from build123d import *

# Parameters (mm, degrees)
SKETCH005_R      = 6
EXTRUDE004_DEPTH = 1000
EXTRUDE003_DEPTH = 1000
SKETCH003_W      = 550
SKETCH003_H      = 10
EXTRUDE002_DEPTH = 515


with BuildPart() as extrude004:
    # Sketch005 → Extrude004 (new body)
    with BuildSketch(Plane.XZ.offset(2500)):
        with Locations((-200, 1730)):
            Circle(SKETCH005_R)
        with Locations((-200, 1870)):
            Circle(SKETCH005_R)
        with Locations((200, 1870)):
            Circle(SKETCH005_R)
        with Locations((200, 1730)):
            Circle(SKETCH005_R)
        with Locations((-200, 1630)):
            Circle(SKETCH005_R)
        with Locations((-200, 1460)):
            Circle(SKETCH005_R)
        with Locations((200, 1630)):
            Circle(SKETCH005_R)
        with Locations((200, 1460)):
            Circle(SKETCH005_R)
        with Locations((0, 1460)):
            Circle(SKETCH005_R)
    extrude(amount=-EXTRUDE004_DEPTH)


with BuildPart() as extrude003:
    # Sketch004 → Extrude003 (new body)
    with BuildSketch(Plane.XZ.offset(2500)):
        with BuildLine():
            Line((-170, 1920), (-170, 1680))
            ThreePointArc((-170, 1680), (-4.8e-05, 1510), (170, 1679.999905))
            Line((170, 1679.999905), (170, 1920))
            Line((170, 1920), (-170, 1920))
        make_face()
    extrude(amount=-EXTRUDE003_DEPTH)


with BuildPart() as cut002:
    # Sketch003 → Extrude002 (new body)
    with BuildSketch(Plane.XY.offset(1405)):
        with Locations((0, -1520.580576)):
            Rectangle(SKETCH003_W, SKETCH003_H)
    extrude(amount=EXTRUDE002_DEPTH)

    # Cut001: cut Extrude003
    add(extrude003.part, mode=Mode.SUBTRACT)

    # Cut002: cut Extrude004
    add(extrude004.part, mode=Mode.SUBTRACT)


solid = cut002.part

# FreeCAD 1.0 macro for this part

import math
import FreeCAD as App
import Part
import Sketcher

V = App.Vector

doc = App.newDocument("Part")
body = doc.addObject("PartDesign::Body", "Body")
body.AllowCompound = True

# Sketch on XZ plane
sketch1 = body.newObject("Sketcher::SketchObject", "Sketch")
sketch1.AttachmentSupport = (doc.getObject("XZ_Plane"), [""])
sketch1.MapMode = "FlatFace"
sketch1.AttachmentOffset = App.Placement(V(0, 0, 2500), App.Rotation())
sketch1.addGeometry([
    Part.Circle(V(-200, 1730, 0), V(0, 0, 1), 6),  # 0
    Part.Circle(V(-200, 1870, 0), V(0, 0, 1), 6),  # 1
    Part.Circle(V(200, 1870, 0), V(0, 0, 1), 6),  # 2
    Part.Circle(V(200, 1730, 0), V(0, 0, 1), 6),  # 3
    Part.Circle(V(-200, 1630, 0), V(0, 0, 1), 6),  # 4
    Part.Circle(V(-200, 1460, 0), V(0, 0, 1), 6),  # 5
    Part.Circle(V(200, 1630, 0), V(0, 0, 1), 6),  # 6
    Part.Circle(V(200, 1460, 0), V(0, 0, 1), 6),  # 7
    Part.Circle(V(0, 1460, 0), V(0, 0, 1), 6),  # 8
], False)
sketch1.addConstraint([
    Sketcher.Constraint("Equal", 0, 1),
    Sketcher.Constraint("Equal", 1, 2),
    Sketcher.Constraint("Equal", 2, 3),
    Sketcher.Constraint("Equal", 3, 4),
    Sketcher.Constraint("Equal", 4, 5),
    Sketcher.Constraint("Equal", 5, 6),
    Sketcher.Constraint("Equal", 6, 7),
    Sketcher.Constraint("Equal", 7, 8),
    Sketcher.Constraint("Symmetric", 1, 3, 2, 3, -2),
    Sketcher.Constraint("Symmetric", 0, 3, 3, 3, -2),
    Sketcher.Constraint("Symmetric", 4, 3, 6, 3, -2),
    Sketcher.Constraint("Symmetric", 5, 3, 7, 3, -2),
    Sketcher.Constraint("PointOnObject", 8, 3, -2),
    Sketcher.Constraint("Horizontal", 7, 3, 8, 3),
    Sketcher.Constraint("Vertical", 0, 3, 1, 3),
    Sketcher.Constraint("Vertical", 1, 3, 4, 3),
    Sketcher.Constraint("Vertical", 4, 3, 5, 3),
    Sketcher.Constraint("Diameter", 0, 12.0),
    Sketcher.Constraint("DistanceX", 0, 3, -1, 1, 200.0),
    Sketcher.Constraint("DistanceY", -1, 1, 0, 3, 1730.0),
    Sketcher.Constraint("DistanceY", -1, 1, 1, 3, 1870.0),
    Sketcher.Constraint("DistanceY", -1, 1, 4, 3, 1630.0),
    Sketcher.Constraint("DistanceY", -1, 1, 5, 3, 1460.0),
])
pad1 = body.newObject("PartDesign::Pad", "Pad")
pad1.Profile = sketch1
pad1.Length = 1000
pad1.Reversed = True
body2 = doc.addObject("PartDesign::Body", "Body001")

# Sketch on XZ plane
sketch2 = body2.newObject("Sketcher::SketchObject", "Sketch001")
sketch2.AttachmentSupport = (doc.getObject("XZ_Plane001"), [""])
sketch2.MapMode = "FlatFace"
sketch2.AttachmentOffset = App.Placement(V(0, 0, 2500), App.Rotation())
sketch2.addGeometry([
    Part.LineSegment(V(-170, 1920, 0), V(-170, 1680, 0)),
    Part.ArcOfCircle(Part.Circle(V(0, 1680, 0), V(0, 0, 1), 170), math.radians(180), math.radians(359.999968)),
    Part.LineSegment(V(170, 1679.999905, 0), V(170, 1920, 0)),
    Part.LineSegment(V(170, 1920, 0), V(-170, 1920, 0)),
], False)
sketch2.addConstraint([
    Sketcher.Constraint("Coincident", 0, 2, 1, 1),
    Sketcher.Constraint("Coincident", 1, 2, 2, 1),
    Sketcher.Constraint("Coincident", 2, 2, 3, 1),
    Sketcher.Constraint("Coincident", 3, 2, 0, 1),
    Sketcher.Constraint("Vertical", 0),
    Sketcher.Constraint("Vertical", 2),
    Sketcher.Constraint("Horizontal", 3),
    Sketcher.Constraint("PointOnObject", 1, 3, -2),
    Sketcher.Constraint("Radius", 1, 170.0),
    Sketcher.Constraint("DistanceY", 0, 2, 0, 1, 240.0),
    Sketcher.Constraint("DistanceY", -1, 1, 1, 3, 1680.0),
    Sketcher.Constraint("DistanceY", -1, 1, 0, 2, 1680.0),
    Sketcher.Constraint("DistanceY", 2, 1, 2, 2, 240.000095),
])
pad2 = body2.newObject("PartDesign::Pad", "Pad001")
pad2.Profile = sketch2
pad2.Length = 1000
pad2.Reversed = True
body3 = doc.addObject("PartDesign::Body", "Body002")

# Sketch on XY plane
sketch3 = body3.newObject("Sketcher::SketchObject", "Sketch002")
sketch3.AttachmentSupport = (doc.getObject("XY_Plane002"), [""])
sketch3.MapMode = "FlatFace"
sketch3.AttachmentOffset = App.Placement(V(0, 0, 1405), App.Rotation())
sketch3.addGeometry([
    Part.LineSegment(V(-275, -1516, 0), V(-275, -1526, 0)),
    Part.LineSegment(V(-275, -1526, 0), V(275, -1526, 0)),
    Part.LineSegment(V(275, -1526, 0), V(275, -1516, 0)),
    Part.LineSegment(V(275, -1516, 0), V(-275, -1516, 0)),
], False)
sketch3.addConstraint([
    Sketcher.Constraint("Coincident", 0, 2, 1, 1),
    Sketcher.Constraint("Coincident", 1, 2, 2, 1),
    Sketcher.Constraint("Coincident", 2, 2, 3, 1),
    Sketcher.Constraint("Coincident", 3, 2, 0, 1),
    Sketcher.Constraint("Vertical", 0),
    Sketcher.Constraint("Horizontal", 1),
    Sketcher.Constraint("Vertical", 2),
    Sketcher.Constraint("Horizontal", 3),
    Sketcher.Constraint("DistanceX", 1, 1, 1, 2, 550.0),
    Sketcher.Constraint("DistanceY", 0, 2, 0, 1, 10.0),
    Sketcher.Constraint("DistanceX", 0, 2, -1, 1, 275.0),
    Sketcher.Constraint("DistanceY", 0, 2, -1, 1, 1525.580576),
])
pad3 = body3.newObject("PartDesign::Pad", "Pad002")
pad3.Profile = sketch3
pad3.Length = 515
doc.recompute()

boolean = body3.newObject("PartDesign::Boolean", "Boolean")
boolean.Type = "Cut"
boolean.addObjects([body2])
doc.recompute()

boolean2 = body3.newObject("PartDesign::Boolean", "Boolean001")
boolean2.Type = "Cut"
boolean2.addObjects([body])

doc.recompute()
